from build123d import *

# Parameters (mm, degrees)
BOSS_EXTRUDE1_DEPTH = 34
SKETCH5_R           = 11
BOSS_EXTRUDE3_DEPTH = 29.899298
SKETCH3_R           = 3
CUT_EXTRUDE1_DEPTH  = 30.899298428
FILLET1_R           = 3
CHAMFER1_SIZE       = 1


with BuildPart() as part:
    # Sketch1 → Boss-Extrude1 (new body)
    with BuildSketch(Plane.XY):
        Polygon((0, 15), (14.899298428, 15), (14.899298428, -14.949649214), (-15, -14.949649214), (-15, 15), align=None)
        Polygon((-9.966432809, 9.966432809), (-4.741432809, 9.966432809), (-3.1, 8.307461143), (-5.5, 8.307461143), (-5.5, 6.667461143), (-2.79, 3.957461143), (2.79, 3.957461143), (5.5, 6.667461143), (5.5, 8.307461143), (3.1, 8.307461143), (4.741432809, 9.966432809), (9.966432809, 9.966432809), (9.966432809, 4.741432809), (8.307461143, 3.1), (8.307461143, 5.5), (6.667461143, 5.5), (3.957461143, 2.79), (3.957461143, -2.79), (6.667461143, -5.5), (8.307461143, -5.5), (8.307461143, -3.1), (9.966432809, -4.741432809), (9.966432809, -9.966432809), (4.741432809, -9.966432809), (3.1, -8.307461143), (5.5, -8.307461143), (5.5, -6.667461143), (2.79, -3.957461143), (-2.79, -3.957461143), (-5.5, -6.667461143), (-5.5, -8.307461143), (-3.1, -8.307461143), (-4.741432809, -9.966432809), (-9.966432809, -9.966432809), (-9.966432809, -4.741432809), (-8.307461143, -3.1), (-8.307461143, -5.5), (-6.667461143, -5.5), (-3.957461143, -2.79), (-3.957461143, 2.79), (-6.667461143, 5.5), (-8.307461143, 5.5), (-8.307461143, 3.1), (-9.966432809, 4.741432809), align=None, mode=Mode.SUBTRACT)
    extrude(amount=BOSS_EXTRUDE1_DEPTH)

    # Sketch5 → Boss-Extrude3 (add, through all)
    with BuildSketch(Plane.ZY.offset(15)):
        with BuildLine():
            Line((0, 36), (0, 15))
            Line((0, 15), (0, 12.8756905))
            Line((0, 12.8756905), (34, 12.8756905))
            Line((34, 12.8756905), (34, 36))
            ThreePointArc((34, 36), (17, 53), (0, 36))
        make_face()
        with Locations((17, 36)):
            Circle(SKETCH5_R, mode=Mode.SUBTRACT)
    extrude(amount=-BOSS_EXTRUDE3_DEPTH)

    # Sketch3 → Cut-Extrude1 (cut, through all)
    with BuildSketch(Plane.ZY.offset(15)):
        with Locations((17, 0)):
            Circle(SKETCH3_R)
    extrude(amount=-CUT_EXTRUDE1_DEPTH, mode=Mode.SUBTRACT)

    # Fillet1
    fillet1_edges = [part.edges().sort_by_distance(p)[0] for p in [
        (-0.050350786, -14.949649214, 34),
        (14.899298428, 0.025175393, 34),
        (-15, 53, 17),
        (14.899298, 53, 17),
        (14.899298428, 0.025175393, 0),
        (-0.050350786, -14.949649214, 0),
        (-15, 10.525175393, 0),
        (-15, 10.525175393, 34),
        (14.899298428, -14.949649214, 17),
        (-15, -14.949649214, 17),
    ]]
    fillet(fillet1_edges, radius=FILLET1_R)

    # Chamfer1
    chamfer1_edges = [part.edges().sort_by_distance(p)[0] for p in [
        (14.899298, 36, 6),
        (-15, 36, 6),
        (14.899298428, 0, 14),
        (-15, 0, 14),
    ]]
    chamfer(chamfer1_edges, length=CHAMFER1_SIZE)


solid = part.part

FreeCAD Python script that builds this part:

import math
import FreeCAD as App
import Part
import Sketcher


def edges_at(feature, points):
    """Names of the edges that pass closest to the given points."""
    edges = feature.Shape.Edges
    near = lambda p: min(range(len(edges)), key=lambda i: edges[i].distToShape(Part.Vertex(*p))[0])
    return sorted({f"Edge{near(p) + 1}" for p in points})

doc = App.newDocument("Part")
body = doc.addObject("PartDesign::Body", "Body")

# Sketch on XY plane
sketch1 = body.newObject("Sketcher::SketchObject", "Sketch")
sketch1.AttachmentSupport = (doc.getObject("XY_Plane"), [""])
sketch1.MapMode = "FlatFace"
sketch1.addGeometry([
    Part.LineSegment(App.Vector(14.9, 15, 0), App.Vector(-15, 15, 0)),  # 0
    Part.LineSegment(App.Vector(-15, 15, 0), App.Vector(-15, -14.9, 0)),  # 1
    Part.LineSegment(App.Vector(-15, -14.9, 0), App.Vector(14.9, -14.9, 0)),  # 2
    Part.LineSegment(App.Vector(14.9, -14.9, 0), App.Vector(14.9, 15, 0)),  # 3
    Part.LineSegment(App.Vector(-10, 10, 0), App.Vector(-4.7, 10, 0)),  # 4
    Part.LineSegment(App.Vector(-4.7, 10, 0), App.Vector(-3.1, 8.3, 0)),  # 5
    Part.LineSegment(App.Vector(-3.1, 8.3, 0), App.Vector(-5.5, 8.3, 0)),  # 6
    Part.LineSegment(App.Vector(-5.5, 8.3, 0), App.Vector(-5.5, 6.7, 0)),  # 7
    Part.LineSegment(App.Vector(-5.5, 6.7, 0), App.Vector(-2.8, 4, 0)),  # 8
    Part.LineSegment(App.Vector(-2.8, 4, 0), App.Vector(2.8, 4, 0)),  # 9
    Part.LineSegment(App.Vector(2.8, 4, 0), App.Vector(5.5, 6.7, 0)),  # 10
    Part.LineSegment(App.Vector(5.5, 6.7, 0), App.Vector(5.5, 8.3, 0)),  # 11
    Part.LineSegment(App.Vector(5.5, 8.3, 0), App.Vector(3.1, 8.3, 0)),  # 12
    Part.LineSegment(App.Vector(3.1, 8.3, 0), App.Vector(4.7, 10, 0)),  # 13
    Part.LineSegment(App.Vector(4.7, 10, 0), App.Vector(10, 10, 0)),  # 14
    Part.LineSegment(App.Vector(10, 10, 0), App.Vector(10, 4.7, 0)),  # 15
    Part.LineSegment(App.Vector(10, 4.7, 0), App.Vector(8.3, 3.1, 0)),  # 16
    Part.LineSegment(App.Vector(8.3, 3.1, 0), App.Vector(8.3, 5.5, 0)),  # 17
    Part.LineSegment(App.Vector(8.3, 5.5, 0), App.Vector(6.7, 5.5, 0)),  # 18
    Part.LineSegment(App.Vector(6.7, 5.5, 0), App.Vector(4, 2.8, 0)),  # 19
    Part.LineSegment(App.Vector(4, 2.8, 0), App.Vector(4, -2.8, 0)),  # 20
    Part.LineSegment(App.Vector(4, -2.8, 0), App.Vector(6.7, -5.5, 0)),  # 21
    Part.LineSegment(App.Vector(6.7, -5.5, 0), App.Vector(8.3, -5.5, 0)),  # 22
    Part.LineSegment(App.Vector(8.3, -5.5, 0), App.Vector(8.3, -3.1, 0)),  # 23
    Part.LineSegment(App.Vector(8.3, -3.1, 0), App.Vector(10, -4.7, 0)),  # 24
    Part.LineSegment(App.Vector(10, -4.7, 0), App.Vector(10, -10, 0)),  # 25
    Part.LineSegment(App.Vector(10, -10, 0), App.Vector(4.7, -10, 0)),  # 26
    Part.LineSegment(App.Vector(4.7, -10, 0), App.Vector(3.1, -8.3, 0)),  # 27
    Part.LineSegment(App.Vector(3.1, -8.3, 0), App.Vector(5.5, -8.3, 0)),  # 28
    Part.LineSegment(App.Vector(5.5, -8.3, 0), App.Vector(5.5, -6.7, 0)),  # 29
    Part.LineSegment(App.Vector(5.5, -6.7, 0), App.Vector(2.8, -4, 0)),  # 30
    Part.LineSegment(App.Vector(2.8, -4, 0), App.Vector(-2.8, -4, 0)),  # 31
    Part.LineSegment(App.Vector(-2.8, -4, 0), App.Vector(-5.5, -6.7, 0)),  # 32
    Part.LineSegment(App.Vector(-5.5, -6.7, 0), App.Vector(-5.5, -8.3, 0)),  # 33
    Part.LineSegment(App.Vector(-5.5, -8.3, 0), App.Vector(-3.1, -8.3, 0)),  # 34
    Part.LineSegment(App.Vector(-3.1, -8.3, 0), App.Vector(-4.7, -10, 0)),  # 35
    Part.LineSegment(App.Vector(-4.7, -10, 0), App.Vector(-10, -10, 0)),  # 36
    Part.LineSegment(App.Vector(-10, -10, 0), App.Vector(-10, -4.7, 0)),  # 37
    Part.LineSegment(App.Vector(-10, -4.7, 0), App.Vector(-8.3, -3.1, 0)),  # 38
    Part.LineSegment(App.Vector(-8.3, -3.1, 0), App.Vector(-8.3, -5.5, 0)),  # 39
    Part.LineSegment(App.Vector(-8.3, -5.5, 0), App.Vector(-6.7, -5.5, 0)),  # 40
    Part.LineSegment(App.Vector(-6.7, -5.5, 0), App.Vector(-4, -2.8, 0)),  # 41
    Part.LineSegment(App.Vector(-4, -2.8, 0), App.Vector(-4, 2.8, 0)),  # 42
    Part.LineSegment(App.Vector(-4, 2.8, 0), App.Vector(-6.7, 5.5, 0)),  # 43
    Part.LineSegment(App.Vector(-6.7, 5.5, 0), App.Vector(-8.3, 5.5, 0)),  # 44
    Part.LineSegment(App.Vector(-8.3, 5.5, 0), App.Vector(-8.3, 3.1, 0)),  # 45
    Part.LineSegment(App.Vector(-8.3, 3.1, 0), App.Vector(-10, 4.7, 0)),  # 46
    Part.LineSegment(App.Vector(-10, 4.7, 0), App.Vector(-10, 10, 0)),  # 47
], False)
sketch1.addConstraint([
    Sketcher.Constraint("Coincident", 0, 2, 1, 1),
    Sketcher.Constraint("Coincident", 1, 2, 2, 1),
    Sketcher.Constraint("Coincident", 2, 2, 3, 1),
    Sketcher.Constraint("Coincident", 3, 2, 0, 1),
    Sketcher.Constraint("Coincident", 4, 2, 5, 1),
    Sketcher.Constraint("Coincident", 5, 2, 6, 1),
    Sketcher.Constraint("Coincident", 6, 2, 7, 1),
    Sketcher.Constraint("Coincident", 7, 2, 8, 1),
    Sketcher.Constraint("Coincident", 8, 2, 9, 1),
    Sketcher.Constraint("Coincident", 9, 2, 10, 1),
    Sketcher.Constraint("Coincident", 10, 2, 11, 1),
    Sketcher.Constraint("Coincident", 11, 2, 12, 1),
    Sketcher.Constraint("Coincident", 12, 2, 13, 1),
    Sketcher.Constraint("Coincident", 13, 2, 14, 1),
    Sketcher.Constraint("Coincident", 14, 2, 15, 1),
    Sketcher.Constraint("Coincident", 15, 2, 16, 1),
    Sketcher.Constraint("Coincident", 16, 2, 17, 1),
    Sketcher.Constraint("Coincident", 17, 2, 18, 1),
    Sketcher.Constraint("Coincident", 18, 2, 19, 1),
    Sketcher.Constraint("Coincident", 19, 2, 20, 1),
    Sketcher.Constraint("Coincident", 20, 2, 21, 1),
    Sketcher.Constraint("Coincident", 21, 2, 22, 1),
    Sketcher.Constraint("Coincident", 22, 2, 23, 1),
    Sketcher.Constraint("Coincident", 23, 2, 24, 1),
    Sketcher.Constraint("Coincident", 24, 2, 25, 1),
    Sketcher.Constraint("Coincident", 25, 2, 26, 1),
    Sketcher.Constraint("Coincident", 26, 2, 27, 1),
    Sketcher.Constraint("Coincident", 27, 2, 28, 1),
    Sketcher.Constraint("Coincident", 28, 2, 29, 1),
    Sketcher.Constraint("Coincident", 29, 2, 30, 1),
    Sketcher.Constraint("Coincident", 30, 2, 31, 1),
    Sketcher.Constraint("Coincident", 31, 2, 32, 1),
    Sketcher.Constraint("Coincident", 32, 2, 33, 1),
    Sketcher.Constraint("Coincident", 33, 2, 34, 1),
    Sketcher.Constraint("Coincident", 34, 2, 35, 1),
    Sketcher.Constraint("Coincident", 35, 2, 36, 1),
    Sketcher.Constraint("Coincident", 36, 2, 37, 1),
    Sketcher.Constraint("Coincident", 37, 2, 38, 1),
    Sketcher.Constraint("Coincident", 38, 2, 39, 1),
    Sketcher.Constraint("Coincident", 39, 2, 40, 1),
    Sketcher.Constraint("Coincident", 40, 2, 41, 1),
    Sketcher.Constraint("Coincident", 41, 2, 42, 1),
    Sketcher.Constraint("Coincident", 42, 2, 43, 1),
    Sketcher.Constraint("Coincident", 43, 2, 44, 1),
    Sketcher.Constraint("Coincident", 44, 2, 45, 1),
    Sketcher.Constraint("Coincident", 45, 2, 46, 1),
    Sketcher.Constraint("Coincident", 46, 2, 47, 1),
    Sketcher.Constraint("Coincident", 47, 2, 4, 1),
    Sketcher.Constraint("Horizontal", 0),
    Sketcher.Constraint("Vertical", 1),
    Sketcher.Constraint("Horizontal", 2),
    Sketcher.Constraint("Vertical", 3),
    Sketcher.Constraint("Horizontal", 4),
    Sketcher.Constraint("Horizontal", 6),
    Sketcher.Constraint("Vertical", 7),
    Sketcher.Constraint("Horizontal", 9),
    Sketcher.Constraint("Vertical", 11),
    Sketcher.Constraint("Horizontal", 12),
    Sketcher.Constraint("Horizontal", 14),
    Sketcher.Constraint("Vertical", 15),
    Sketcher.Constraint("Vertical", 17),
    Sketcher.Constraint("Horizontal", 18),
    Sketcher.Constraint("Vertical", 20),
    Sketcher.Constraint("Horizontal", 22),
    Sketcher.Constraint("Vertical", 23),
    Sketcher.Constraint("Vertical", 25),
    Sketcher.Constraint("Horizontal", 26),
    Sketcher.Constraint("Horizontal", 28),
    Sketcher.Constraint("Vertical", 29),
    Sketcher.Constraint("Horizontal", 31),
    Sketcher.Constraint("Vertical", 33),
    Sketcher.Constraint("Horizontal", 34),
    Sketcher.Constraint("Horizontal", 36),
    Sketcher.Constraint("Vertical", 37),
    Sketcher.Constraint("Vertical", 39),
    Sketcher.Constraint("Horizontal", 40),
    Sketcher.Constraint("Vertical", 42),
    Sketcher.Constraint("Horizontal", 44),
    Sketcher.Constraint("Vertical", 45),
    Sketcher.Constraint("Vertical", 47),
    Sketcher.Constraint("Symmetric", 4, 2, 26, 2, -1, 1),
    Sketcher.Constraint("Symmetric", 5, 2, 27, 2, -1, 1),
    Sketcher.Constraint("Symmetric", 7, 2, 29, 2, -1, 1),
    Sketcher.Constraint("Symmetric", 8, 2, 30, 2, -1, 1),
    Sketcher.Constraint("Symmetric", 10, 2, 32, 2, -1, 1),
    Sketcher.Constraint("Symmetric", 12, 2, 34, 2, -1, 1),
    Sketcher.Constraint("Symmetric", 13, 2, 35, 2, -1, 1),
    Sketcher.Constraint("Symmetric", 15, 2, 37, 2, -1, 1),
    Sketcher.Constraint("Symmetric", 16, 2, 38, 2, -1, 1),
    Sketcher.Constraint("Symmetric", 18, 2, 40, 2, -1, 1),
    Sketcher.Constraint("Symmetric", 19, 2, 41, 2, -1, 1),
    Sketcher.Constraint("Symmetric", 21, 2, 43, 2, -1, 1),
    Sketcher.Constraint("Symmetric", 23, 2, 45, 2, -1, 1),
    Sketcher.Constraint("Symmetric", 24, 2, 46, 2, -1, 1),
    Sketcher.Constraint("Symmetric", 7, 2, 10, 2, -2),
    Sketcher.Constraint("Symmetric", 5, 2, 12, 2, -2),
    Sketcher.Constraint("Symmetric", 4, 2, 13, 2, -2),
    Sketcher.Constraint("Symmetric", 24, 2, 37, 2, -2),
    Sketcher.Constraint("Symmetric", 23, 2, 38, 2, -2),
    Sketcher.Constraint("Symmetric", 21, 2, 40, 2, -2),
    Sketcher.Constraint("Perpendicular", 8, 10),
    Sketcher.Constraint("Perpendicular", 5, 16),
    Sketcher.Constraint("Parallel", 10, 19),
    Sketcher.Constraint("Perpendicular", 19, 21),
    Sketcher.Constraint("Perpendicular", 30, 32),
    Sketcher.Constraint("Perpendicular", 41, 43),
    Sketcher.Constraint("Horizontal", 20, 2, 41, 2),
    Sketcher.Constraint("Equal", 44, 7),
    Sketcher.Constraint("Equal", 36, 15),
    Sketcher.Constraint("Equal", 34, 17),
    Sketcher.Constraint("Equal", 31, 20),
    Sketcher.Constraint("Equal", 13, 16),
    Sketcher.Constraint("Equal", 10, 19),
    Sketcher.Constraint("DistanceX", 6, 2, 6, 1, 2.4),
    Sketcher.Constraint("DistanceX", 0, 2, -1, 1, 15.0),
    Sketcher.Constraint("DistanceY", -1, 1, 0, 2, 15.0),
    Sketcher.Constraint("DistanceX", 7, 2, 10, 2, 11.0),
    Sketcher.Constraint("DistanceX", 9, 1, 9, 2, 5.58),
    Sketcher.Constraint("DistanceX", 18, 2, 18, 1, 1.64),
    Sketcher.Constraint("DistanceX", 4, 1, 4, 2, 5.225),
    Sketcher.Constraint("DistanceX", 0, 2, 0, 1, 29.899298),
    Sketcher.Constraint("DistanceY", 1, 2, 1, 1, 29.949649),
    Sketcher.Constraint("Distance", 5, 2.333771),
    Sketcher.Constraint("DistanceY", -1, 1, 5, 2, 8.307461),
])
pad1 = body.newObject("PartDesign::Pad", "Pad")
pad1.Profile = sketch1
pad1.Length = 34

# Sketch on YZ plane
sketch2 = body.newObject("Sketcher::SketchObject", "Sketch001")
sketch2.AttachmentSupport = (doc.getObject("YZ_Plane"), [""])
sketch2.MapMode = "FlatFace"
sketch2.AttachmentOffset = App.Placement(App.Vector(0, 0, -15), App.Rotation())
sketch2.addGeometry([
    Part.LineSegment(App.Vector(36, 0, 0), App.Vector(13, 0, 0)),  # 0
    Part.LineSegment(App.Vector(13, 0, 0), App.Vector(13, 34, 0)),  # 1
    Part.LineSegment(App.Vector(13, 34, 0), App.Vector(36, 34, 0)),  # 2
    Part.ArcOfCircle(Part.Circle(App.Vector(36, 17, 0), App.Vector(0, 0, 1), 17), math.radians(-90), math.radians(90)),  # 3
    Part.Circle(App.Vector(36, 17, 0), App.Vector(0, 0, 1), 11),  # 4
], False)
sketch2.addConstraint([
    Sketcher.Constraint("Coincident", 0, 2, 1, 1),
    Sketcher.Constraint("Coincident", 1, 2, 2, 1),
    Sketcher.Constraint("Tangent", 2, 2, 3, 2),
    Sketcher.Constraint("Tangent", 3, 1, 0, 1),
    Sketcher.Constraint("Horizontal", 0),
    Sketcher.Constraint("Vertical", 1),
    Sketcher.Constraint("Horizontal", 2),
    Sketcher.Constraint("Coincident", 4, 3, 3, 3),
    Sketcher.Constraint("PointOnObject", 0, 2, -1),
    Sketcher.Constraint("Diameter", 4, 22.0),
    Sketcher.Constraint("Radius", 3, 17.0),
    Sketcher.Constraint("DistanceX", -1, 1, 3, 3, 36.0),
    Sketcher.Constraint("DistanceX", 0, 2, 0, 1, 23.12431),
])
pad2 = body.newObject("PartDesign::Pad", "Pad001")
pad2.Profile = sketch2
pad2.Length = 29.899298

# Sketch on YZ plane
sketch3 = body.newObject("Sketcher::SketchObject", "Sketch002")
sketch3.AttachmentSupport = (doc.getObject("YZ_Plane"), [""])
sketch3.MapMode = "FlatFace"
sketch3.AttachmentOffset = App.Placement(App.Vector(0, 0, -15), App.Rotation())
sketch3.addGeometry(Part.Circle(App.Vector(0, 17, 0), App.Vector(0, 0, 1), 3), False)
sketch3.addConstraint([
    Sketcher.Constraint("PointOnObject", 0, 3, -2),
    Sketcher.Constraint("Diameter", 0, 6.0),
    Sketcher.Constraint("DistanceY", -1, 1, 0, 3, 17.0),
])
pocket1 = body.newObject("PartDesign::Pocket", "Pocket")
pocket1.Profile = sketch3
pocket1.Type = "ThroughAll"
pocket1.Reversed = True
doc.recompute()

fillet = body.newObject("PartDesign::Fillet", "Fillet")
fillet.Base = (pocket1, edges_at(pocket1, [
    (-0.05, -14.95, 34),
    (14.899, 0.025, 34),
    (-15, 53, 17),
    (14.899, 53, 17),
    (14.899, 0.025, 0),
    (-0.05, -14.95, 0),
    (-15, 10.525, 0),
    (-15, 10.525, 34),
    (14.899, -14.95, 17),
    (-15, -14.95, 17),
]))
fillet.Radius = 3
doc.recompute()

chamfer = body.newObject("PartDesign::Chamfer", "Chamfer")
chamfer.Base = (fillet, edges_at(fillet, [
    (14.899, 36, 6),
    (-15, 36, 6),
    (14.899, 0, 14),
    (-15, 0, 14),
]))
chamfer.Size = 1

doc.recompute()
